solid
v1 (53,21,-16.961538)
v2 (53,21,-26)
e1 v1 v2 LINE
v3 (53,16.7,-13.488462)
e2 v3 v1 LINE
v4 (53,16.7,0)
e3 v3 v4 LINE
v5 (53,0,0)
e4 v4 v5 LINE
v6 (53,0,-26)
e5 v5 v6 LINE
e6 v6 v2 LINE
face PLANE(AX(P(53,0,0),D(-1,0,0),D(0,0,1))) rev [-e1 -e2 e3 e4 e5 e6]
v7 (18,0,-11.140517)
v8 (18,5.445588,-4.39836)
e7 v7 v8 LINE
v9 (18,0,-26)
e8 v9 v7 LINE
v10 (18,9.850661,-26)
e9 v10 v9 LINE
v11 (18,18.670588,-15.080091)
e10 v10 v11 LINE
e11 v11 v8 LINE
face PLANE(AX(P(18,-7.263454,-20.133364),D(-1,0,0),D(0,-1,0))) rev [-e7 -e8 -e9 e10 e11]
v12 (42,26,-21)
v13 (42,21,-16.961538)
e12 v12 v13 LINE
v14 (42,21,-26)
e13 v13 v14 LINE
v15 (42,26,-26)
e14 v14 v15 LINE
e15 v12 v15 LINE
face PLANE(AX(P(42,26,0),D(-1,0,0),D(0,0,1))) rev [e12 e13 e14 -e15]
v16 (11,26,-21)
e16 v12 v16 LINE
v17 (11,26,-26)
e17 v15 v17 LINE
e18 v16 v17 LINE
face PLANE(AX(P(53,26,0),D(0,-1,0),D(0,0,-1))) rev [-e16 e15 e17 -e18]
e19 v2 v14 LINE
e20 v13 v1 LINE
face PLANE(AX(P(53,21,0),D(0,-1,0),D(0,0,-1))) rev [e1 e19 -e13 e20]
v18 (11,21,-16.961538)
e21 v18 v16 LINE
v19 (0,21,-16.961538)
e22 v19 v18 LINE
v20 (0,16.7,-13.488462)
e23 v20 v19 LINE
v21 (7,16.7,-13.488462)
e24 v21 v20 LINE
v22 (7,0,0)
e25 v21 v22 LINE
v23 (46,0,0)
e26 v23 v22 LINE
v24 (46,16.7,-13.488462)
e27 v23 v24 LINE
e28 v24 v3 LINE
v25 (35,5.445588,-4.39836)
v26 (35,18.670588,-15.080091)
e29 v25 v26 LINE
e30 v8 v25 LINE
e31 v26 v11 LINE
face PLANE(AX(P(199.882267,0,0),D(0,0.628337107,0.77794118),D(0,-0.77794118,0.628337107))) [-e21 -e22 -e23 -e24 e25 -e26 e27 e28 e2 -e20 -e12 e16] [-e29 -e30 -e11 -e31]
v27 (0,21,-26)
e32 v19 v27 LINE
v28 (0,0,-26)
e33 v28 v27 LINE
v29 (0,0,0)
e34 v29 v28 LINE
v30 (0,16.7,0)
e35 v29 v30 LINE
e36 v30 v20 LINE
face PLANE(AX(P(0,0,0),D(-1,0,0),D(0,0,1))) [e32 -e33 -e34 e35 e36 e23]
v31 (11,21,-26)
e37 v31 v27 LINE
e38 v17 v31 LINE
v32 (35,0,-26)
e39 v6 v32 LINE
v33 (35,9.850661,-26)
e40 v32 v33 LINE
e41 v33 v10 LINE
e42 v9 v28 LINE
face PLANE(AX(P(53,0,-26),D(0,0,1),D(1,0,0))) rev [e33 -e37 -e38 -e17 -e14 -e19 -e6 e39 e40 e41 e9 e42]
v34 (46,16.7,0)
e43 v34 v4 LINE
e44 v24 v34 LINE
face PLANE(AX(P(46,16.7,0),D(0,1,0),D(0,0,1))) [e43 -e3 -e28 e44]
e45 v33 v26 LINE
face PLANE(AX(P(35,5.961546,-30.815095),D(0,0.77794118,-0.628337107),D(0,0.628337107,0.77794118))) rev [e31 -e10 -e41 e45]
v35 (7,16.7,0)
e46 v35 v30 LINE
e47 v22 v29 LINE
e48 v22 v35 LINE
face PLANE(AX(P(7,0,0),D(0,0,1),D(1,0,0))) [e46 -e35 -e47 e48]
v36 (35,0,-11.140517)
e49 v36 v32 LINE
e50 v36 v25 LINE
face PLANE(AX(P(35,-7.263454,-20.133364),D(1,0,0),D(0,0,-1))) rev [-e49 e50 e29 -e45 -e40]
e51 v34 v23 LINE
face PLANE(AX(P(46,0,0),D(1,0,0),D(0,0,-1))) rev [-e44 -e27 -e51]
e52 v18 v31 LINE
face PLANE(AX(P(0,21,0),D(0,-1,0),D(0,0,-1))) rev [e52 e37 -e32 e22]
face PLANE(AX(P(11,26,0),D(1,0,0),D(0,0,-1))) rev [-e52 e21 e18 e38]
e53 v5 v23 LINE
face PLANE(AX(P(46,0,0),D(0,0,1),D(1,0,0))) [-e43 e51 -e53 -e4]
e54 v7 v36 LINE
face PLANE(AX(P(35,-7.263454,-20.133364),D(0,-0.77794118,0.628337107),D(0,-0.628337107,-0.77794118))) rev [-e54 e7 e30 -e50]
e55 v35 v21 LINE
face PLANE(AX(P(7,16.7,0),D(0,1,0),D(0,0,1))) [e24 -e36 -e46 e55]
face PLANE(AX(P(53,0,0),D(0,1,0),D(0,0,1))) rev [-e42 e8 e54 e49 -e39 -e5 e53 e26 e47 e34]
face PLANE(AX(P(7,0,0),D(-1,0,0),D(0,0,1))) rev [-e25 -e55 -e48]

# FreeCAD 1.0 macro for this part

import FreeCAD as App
import Part
import Sketcher

V = App.Vector

doc = App.newDocument("Part")
params = doc.addObject("Spreadsheet::Sheet", "Params")
for row, (alias, value) in enumerate([
    ("sketch1_width", "26 mm"),
    ("pad1_length", "53 mm"),
    ("sketch3_width", "11 mm"),
    ("sketch3_height", "5 mm"),
    ("sketch4_width", "17 mm"),
    ("sketch5_width", "16.7 mm"),
    ("pad2_length", "7 mm"),
    ("sketch6_width", "16.7 mm"),
    ("pad3_length", "7 mm"),
], start=1):
    params.set(f"A{row}", alias)
    params.set(f"B{row}", "=" + value)
    params.setAlias(f"B{row}", alias)

body = doc.addObject("PartDesign::Body", "Body")

# Sketch on YZ plane
sketch1 = doc.addObject("Sketcher::SketchObject", "Sketch")
body.addObject(sketch1)
sketch1.AttachmentSupport = (doc.YZ_Plane, [""])
sketch1.MapMode = "FlatFace"
sketch1.addGeometry([
    Part.LineSegment(V(26, 0, 0), V(0, 0, 0)),
    Part.LineSegment(V(0, 0, 0), V(0, -26, 0)),
    Part.LineSegment(V(0, -26, 0), V(26, -26, 0)),
    Part.LineSegment(V(26, -26, 0), V(26, 0, 0)),
], False)
sketch1.addConstraint([
    Sketcher.Constraint("Coincident", 0, 2, 1, 1),
    Sketcher.Constraint("Coincident", 1, 2, 2, 1),
    Sketcher.Constraint("Coincident", 2, 2, 3, 1),
    Sketcher.Constraint("Coincident", 3, 2, 0, 1),
    Sketcher.Constraint("Horizontal", 0),
    Sketcher.Constraint("Vertical", 1),
    Sketcher.Constraint("Horizontal", 2),
    Sketcher.Constraint("Vertical", 3),
    Sketcher.Constraint("Coincident", 0, 2, -1, 1),
    Sketcher.Constraint("Equal", 2, 1),
    Sketcher.Constraint("DistanceX", 0, 2, 0, 1, 26.0),
])
sketch1.setExpression("Constraints[10]", "Params.sketch1_width")
pad1 = doc.addObject("PartDesign::Pad", "Pad")
body.addObject(pad1)
pad1.Profile = sketch1
pad1.setExpression("Length", "Params.pad1_length")

# Sketch on YZ plane
sketch2 = doc.addObject("Sketcher::SketchObject", "Sketch001")
body.addObject(sketch2)
sketch2.AttachmentSupport = (doc.YZ_Plane, [""])
sketch2.MapMode = "FlatFace"
sketch2.AttachmentOffset = App.Placement(V(0, 0, 53), App.Rotation())
sketch2.addGeometry([
    Part.LineSegment(V(-65, 52, 0), V(0, 0, 0)),  # 0
    Part.LineSegment(V(0, 0, 0), V(26, -21, 0)),  # 1
    Part.LineSegment(V(26, -21, 0), V(91, -73, 0)),  # 2
    Part.LineSegment(V(91, -73, 0), V(196, 56, 0)),  # 3
    Part.LineSegment(V(196, 56, 0), V(40, 182, 0)),  # 4
    Part.LineSegment(V(40, 182, 0), V(-65, 52, 0)),  # 5
], False)
sketch2.addConstraint([
    Sketcher.Constraint("Coincident", 0, 2, 1, 1),
    Sketcher.Constraint("Coincident", 1, 2, 2, 1),
    Sketcher.Constraint("Coincident", 2, 2, 3, 1),
    Sketcher.Constraint("Coincident", 3, 2, 4, 1),
    Sketcher.Constraint("Coincident", 4, 2, 5, 1),
    Sketcher.Constraint("Coincident", 5, 2, 0, 1),
    Sketcher.Constraint("Coincident", 0, 2, -1, 1),
    Sketcher.Constraint("Parallel", 0, 1),
    Sketcher.Constraint("Parallel", 1, 2),
    Sketcher.Constraint("Perpendicular", 2, 3),
    Sketcher.Constraint("Perpendicular", 3, 4),
    Sketcher.Constraint("Perpendicular", 4, 5),
    Sketcher.Constraint("Equal", 0, 2),
    Sketcher.Constraint("DistanceX", -1, 1, 1, 2, 26.0),
    Sketcher.Constraint("DistanceY", 1, 2, -1, 1, 21.0),
    Sketcher.Constraint("DistanceY", -1, 1, 3, 2, 56.486301),
    Sketcher.Constraint("Distance", 3, 167.07821),
])
pocket1 = doc.addObject("PartDesign::Pocket", "Pocket")
body.addObject(pocket1)
pocket1.Profile = sketch2
pocket1.Type = "ThroughAll"
pocket1.Midplane = True

# Sketch on XY plane
sketch3 = doc.addObject("Sketcher::SketchObject", "Sketch002")
body.addObject(sketch3)
sketch3.AttachmentSupport = (doc.XY_Plane, [""])
sketch3.MapMode = "FlatFace"
sketch3.AttachmentOffset = App.Placement(V(0, 0, -26), App.Rotation())
sketch3.addGeometry([
    Part.LineSegment(V(11, 26, 0), V(11, 21, 0)),  # 0
    Part.LineSegment(V(11, 21, 0), V(0, 21, 0)),  # 1
    Part.LineSegment(V(0, 21, 0), V(0, 26, 0)),  # 2
    Part.LineSegment(V(0, 26, 0), V(11, 26, 0)),  # 3
    Part.LineSegment(V(53, 26, 0), V(53, 21, 0)),  # 4
    Part.LineSegment(V(53, 21, 0), V(42, 21, 0)),  # 5
    Part.LineSegment(V(42, 21, 0), V(42, 26, 0)),  # 6
    Part.LineSegment(V(42, 26, 0), V(53, 26, 0)),  # 7
], False)
sketch3.addConstraint([
    Sketcher.Constraint("Coincident", 0, 2, 1, 1),
    Sketcher.Constraint("Coincident", 1, 2, 2, 1),
    Sketcher.Constraint("Coincident", 2, 2, 3, 1),
    Sketcher.Constraint("Coincident", 3, 2, 0, 1),
    Sketcher.Constraint("Coincident", 4, 2, 5, 1),
    Sketcher.Constraint("Coincident", 5, 2, 6, 1),
    Sketcher.Constraint("Coincident", 6, 2, 7, 1),
    Sketcher.Constraint("Coincident", 7, 2, 4, 1),
    Sketcher.Constraint("Vertical", 0),
    Sketcher.Constraint("Horizontal", 1),
    Sketcher.Constraint("Vertical", 2),
    Sketcher.Constraint("Horizontal", 3),
    Sketcher.Constraint("Vertical", 4),
    Sketcher.Constraint("Horizontal", 5),
    Sketcher.Constraint("Vertical", 6),
    Sketcher.Constraint("Horizontal", 7),
    Sketcher.Constraint("PointOnObject", 1, 2, -2),
    Sketcher.Constraint("Horizontal", 1, 2, 4, 2),
    Sketcher.Constraint("Horizontal", 3, 2, 6, 2),
    Sketcher.Constraint("Equal", 3, 5),
    Sketcher.Constraint("DistanceX", 1, 2, 1, 1, 11.0),
    Sketcher.Constraint("DistanceY", 0, 2, 0, 1, 5.0),
    Sketcher.Constraint("DistanceY", -1, 1, 0, 2, 21.0),
    Sketcher.Constraint("DistanceX", -1, 1, 4, 2, 53.0),
])
sketch3.setExpression("Constraints[20]", "Params.sketch3_width")
sketch3.setExpression("Constraints[21]", "Params.sketch3_height")
pocket2 = doc.addObject("PartDesign::Pocket", "Pocket001")
body.addObject(pocket2)
pocket2.Profile = sketch3
pocket2.Type = "ThroughAll"
pocket2.Reversed = True

# Sketch on an angled plane
sketch4 = doc.addObject("Sketcher::SketchObject", "Sketch003")
body.addObject(sketch4)
sketch4.Placement = App.Placement(V(0, 0, 0), App.Rotation(V(1, 0, 0), V(0, 0.77794118, -0.628337107), V(0, 0.628337107, 0.77794118), "ZXY"))
sketch4.addGeometry([
    Part.LineSegment(V(18, 24, 0), V(18, 7, 0)),
    Part.LineSegment(V(18, 7, 0), V(35, 7, 0)),
    Part.LineSegment(V(35, 7, 0), V(35, 24, 0)),
    Part.LineSegment(V(35, 24, 0), V(18, 24, 0)),
], False)
sketch4.addConstraint([
    Sketcher.Constraint("Coincident", 0, 2, 1, 1),
    Sketcher.Constraint("Coincident", 1, 2, 2, 1),
    Sketcher.Constraint("Coincident", 2, 2, 3, 1),
    Sketcher.Constraint("Coincident", 3, 2, 0, 1),
    Sketcher.Constraint("Vertical", 0),
    Sketcher.Constraint("Horizontal", 1),
    Sketcher.Constraint("Vertical", 2),
    Sketcher.Constraint("Horizontal", 3),
    Sketcher.Constraint("Equal", 3, 0),
    Sketcher.Constraint("DistanceX", 1, 1, 1, 2, 17.0),
    Sketcher.Constraint("DistanceX", -1, 1, 0, 2, 18.0),
    Sketcher.Constraint("DistanceY", -1, 1, 0, 2, 7.0),
])
sketch4.setExpression("Constraints[9]", "Params.sketch4_width")
pocket3 = doc.addObject("PartDesign::Pocket", "Pocket002")
body.addObject(pocket3)
pocket3.Profile = sketch4
pocket3.Type = "ThroughAll"

# Sketch on YZ plane
sketch5 = doc.addObject("Sketcher::SketchObject", "Sketch004")
body.addObject(sketch5)
sketch5.AttachmentSupport = (doc.YZ_Plane, [""])
sketch5.MapMode = "FlatFace"
sketch5.AttachmentOffset = App.Placement(V(0, 0, 53), App.Rotation())
sketch5.addGeometry([
    Part.LineSegment(V(17, 0, 0), V(0, 0, 0)),
    Part.LineSegment(V(0, 0, 0), V(17, -13, 0)),
    Part.LineSegment(V(17, -13, 0), V(17, 0, 0)),
], False)
sketch5.addConstraint([
    Sketcher.Constraint("Coincident", 0, 2, 1, 1),
    Sketcher.Constraint("Coincident", 1, 2, 2, 1),
    Sketcher.Constraint("Coincident", 2, 2, 0, 1),
    Sketcher.Constraint("Horizontal", 0),
    Sketcher.Constraint("Vertical", 2),
    Sketcher.Constraint("Coincident", 0, 2, -1, 1),
    Sketcher.Constraint("DistanceX", 0, 2, 0, 1, 16.7),
    Sketcher.Constraint("DistanceY", 2, 1, 2, 2, 13.488462),
])
sketch5.setExpression("Constraints[6]", "Params.sketch5_width")
pad2 = doc.addObject("PartDesign::Pad", "Pad001")
body.addObject(pad2)
pad2.Profile = sketch5
pad2.setExpression("Length", "Params.pad2_length")
pad2.Reversed = True

# Sketch on YZ plane
sketch6 = doc.addObject("Sketcher::SketchObject", "Sketch005")
body.addObject(sketch6)
sketch6.AttachmentSupport = (doc.YZ_Plane, [""])
sketch6.MapMode = "FlatFace"
sketch6.addGeometry([
    Part.LineSegment(V(0, 0, 0), V(17, 0, 0)),
    Part.LineSegment(V(17, 0, 0), V(17, -13, 0)),
    Part.LineSegment(V(17, -13, 0), V(0, 0, 0)),
], False)
sketch6.addConstraint([
    Sketcher.Constraint("Coincident", 0, 2, 1, 1),
    Sketcher.Constraint("Coincident", 1, 2, 2, 1),
    Sketcher.Constraint("Coincident", 2, 2, 0, 1),
    Sketcher.Constraint("Horizontal", 0),
    Sketcher.Constraint("Vertical", 1),
    Sketcher.Constraint("Coincident", 2, 2, -1, 1),
    Sketcher.Constraint("DistanceX", 0, 1, 0, 2, 16.7),
    Sketcher.Constraint("DistanceY", 1, 2, 1, 1, 13.488462),
])
sketch6.setExpression("Constraints[6]", "Params.sketch6_width")
pad3 = doc.addObject("PartDesign::Pad", "Pad002")
body.addObject(pad3)
pad3.Profile = sketch6
pad3.setExpression("Length", "Params.pad3_length")

doc.recompute()
